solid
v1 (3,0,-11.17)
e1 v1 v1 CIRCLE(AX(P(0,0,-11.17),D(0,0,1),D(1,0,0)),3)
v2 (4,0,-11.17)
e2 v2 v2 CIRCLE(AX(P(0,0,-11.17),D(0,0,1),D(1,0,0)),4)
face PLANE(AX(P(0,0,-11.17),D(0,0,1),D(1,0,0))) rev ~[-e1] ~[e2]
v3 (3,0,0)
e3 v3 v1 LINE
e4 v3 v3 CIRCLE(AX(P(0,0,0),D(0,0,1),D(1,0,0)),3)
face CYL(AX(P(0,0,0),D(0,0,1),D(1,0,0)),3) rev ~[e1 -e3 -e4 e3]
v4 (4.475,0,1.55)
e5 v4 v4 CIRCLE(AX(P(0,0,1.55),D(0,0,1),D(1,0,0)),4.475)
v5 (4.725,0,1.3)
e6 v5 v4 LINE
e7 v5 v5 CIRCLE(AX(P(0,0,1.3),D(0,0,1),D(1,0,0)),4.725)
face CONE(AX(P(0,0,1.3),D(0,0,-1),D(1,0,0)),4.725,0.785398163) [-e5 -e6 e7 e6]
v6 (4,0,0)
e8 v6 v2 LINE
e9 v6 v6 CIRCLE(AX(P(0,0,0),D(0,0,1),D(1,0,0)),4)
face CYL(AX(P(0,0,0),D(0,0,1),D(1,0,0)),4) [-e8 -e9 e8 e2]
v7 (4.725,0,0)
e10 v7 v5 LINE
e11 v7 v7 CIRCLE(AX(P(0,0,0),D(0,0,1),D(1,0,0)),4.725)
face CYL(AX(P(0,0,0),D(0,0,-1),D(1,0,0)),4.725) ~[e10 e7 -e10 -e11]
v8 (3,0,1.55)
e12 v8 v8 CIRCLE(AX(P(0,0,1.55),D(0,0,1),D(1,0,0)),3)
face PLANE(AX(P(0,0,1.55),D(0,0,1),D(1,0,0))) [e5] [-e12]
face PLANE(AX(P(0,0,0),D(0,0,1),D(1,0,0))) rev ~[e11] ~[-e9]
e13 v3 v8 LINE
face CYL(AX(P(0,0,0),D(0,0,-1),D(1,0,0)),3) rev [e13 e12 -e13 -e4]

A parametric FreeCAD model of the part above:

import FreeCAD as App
import Part
import Sketcher
from FreeCAD import Vector


def edges_at(feature, points):
    """Names of the edges that pass closest to the given points."""
    edges = feature.Shape.Edges
    near = lambda p: min(range(len(edges)), key=lambda i: edges[i].distToShape(Part.Vertex(*p))[0])
    return sorted({f"Edge{near(p) + 1}" for p in points})

doc = App.newDocument("Part")
body = doc.addObject("PartDesign::Body", "Body")

# Sketch on XY plane
sketch1 = doc.addObject("Sketcher::SketchObject", "Sketch")
body.addObject(sketch1)
sketch1.AttachmentSupport = (doc.XY_Plane, [""])
sketch1.MapMode = "FlatFace"
sketch1.addGeometry(Part.Circle(Vector(0, 0, 0), Vector(0, 0, 1), 4.7), False)
sketch1.addGeometry(Part.Circle(Vector(0, 0, 0), Vector(0, 0, 1), 3), False)
sketch1.addConstraint(Sketcher.Constraint("Coincident", 0, 3, -1, 1))
sketch1.addConstraint(Sketcher.Constraint("Coincident", 1, 3, -1, 1))
sketch1.addConstraint(Sketcher.Constraint("Diameter", 1, 6.0))
sketch1.addConstraint(Sketcher.Constraint("Diameter", 0, 9.45))
pad1 = doc.addObject("PartDesign::Pad", "Pad")
body.addObject(pad1)
pad1.Profile = sketch1
pad1.Length = 1.55

# Sketch on XY plane
sketch2 = doc.addObject("Sketcher::SketchObject", "Sketch001")
body.addObject(sketch2)
sketch2.AttachmentSupport = (doc.XY_Plane, [""])
sketch2.MapMode = "FlatFace"
sketch2.addGeometry(Part.Circle(Vector(0, 0, 0), Vector(0, 0, 1), 4), False)
sketch2.addGeometry(Part.Circle(Vector(0, 0, 0), Vector(0, 0, 1), 3), False)
sketch2.addConstraint(Sketcher.Constraint("Coincident", 0, 3, -1, 1))
sketch2.addConstraint(Sketcher.Constraint("Coincident", 1, 3, -1, 1))
sketch2.addConstraint(Sketcher.Constraint("Diameter", 0, 8.0))
sketch2.addConstraint(Sketcher.Constraint("Diameter", 1, 6.0))
pad2 = doc.addObject("PartDesign::Pad", "Pad001")
body.addObject(pad2)
pad2.Profile = sketch2
pad2.Length = 11.17
pad2.Reversed = True
doc.recompute()

chamfer = doc.addObject("PartDesign::Chamfer", "Chamfer")
body.addObject(chamfer)
chamfer.Base = (pad2, edges_at(pad2, [(-4.725, 0, 1.55)]))
chamfer.Size = 0.25

doc.recompute()
